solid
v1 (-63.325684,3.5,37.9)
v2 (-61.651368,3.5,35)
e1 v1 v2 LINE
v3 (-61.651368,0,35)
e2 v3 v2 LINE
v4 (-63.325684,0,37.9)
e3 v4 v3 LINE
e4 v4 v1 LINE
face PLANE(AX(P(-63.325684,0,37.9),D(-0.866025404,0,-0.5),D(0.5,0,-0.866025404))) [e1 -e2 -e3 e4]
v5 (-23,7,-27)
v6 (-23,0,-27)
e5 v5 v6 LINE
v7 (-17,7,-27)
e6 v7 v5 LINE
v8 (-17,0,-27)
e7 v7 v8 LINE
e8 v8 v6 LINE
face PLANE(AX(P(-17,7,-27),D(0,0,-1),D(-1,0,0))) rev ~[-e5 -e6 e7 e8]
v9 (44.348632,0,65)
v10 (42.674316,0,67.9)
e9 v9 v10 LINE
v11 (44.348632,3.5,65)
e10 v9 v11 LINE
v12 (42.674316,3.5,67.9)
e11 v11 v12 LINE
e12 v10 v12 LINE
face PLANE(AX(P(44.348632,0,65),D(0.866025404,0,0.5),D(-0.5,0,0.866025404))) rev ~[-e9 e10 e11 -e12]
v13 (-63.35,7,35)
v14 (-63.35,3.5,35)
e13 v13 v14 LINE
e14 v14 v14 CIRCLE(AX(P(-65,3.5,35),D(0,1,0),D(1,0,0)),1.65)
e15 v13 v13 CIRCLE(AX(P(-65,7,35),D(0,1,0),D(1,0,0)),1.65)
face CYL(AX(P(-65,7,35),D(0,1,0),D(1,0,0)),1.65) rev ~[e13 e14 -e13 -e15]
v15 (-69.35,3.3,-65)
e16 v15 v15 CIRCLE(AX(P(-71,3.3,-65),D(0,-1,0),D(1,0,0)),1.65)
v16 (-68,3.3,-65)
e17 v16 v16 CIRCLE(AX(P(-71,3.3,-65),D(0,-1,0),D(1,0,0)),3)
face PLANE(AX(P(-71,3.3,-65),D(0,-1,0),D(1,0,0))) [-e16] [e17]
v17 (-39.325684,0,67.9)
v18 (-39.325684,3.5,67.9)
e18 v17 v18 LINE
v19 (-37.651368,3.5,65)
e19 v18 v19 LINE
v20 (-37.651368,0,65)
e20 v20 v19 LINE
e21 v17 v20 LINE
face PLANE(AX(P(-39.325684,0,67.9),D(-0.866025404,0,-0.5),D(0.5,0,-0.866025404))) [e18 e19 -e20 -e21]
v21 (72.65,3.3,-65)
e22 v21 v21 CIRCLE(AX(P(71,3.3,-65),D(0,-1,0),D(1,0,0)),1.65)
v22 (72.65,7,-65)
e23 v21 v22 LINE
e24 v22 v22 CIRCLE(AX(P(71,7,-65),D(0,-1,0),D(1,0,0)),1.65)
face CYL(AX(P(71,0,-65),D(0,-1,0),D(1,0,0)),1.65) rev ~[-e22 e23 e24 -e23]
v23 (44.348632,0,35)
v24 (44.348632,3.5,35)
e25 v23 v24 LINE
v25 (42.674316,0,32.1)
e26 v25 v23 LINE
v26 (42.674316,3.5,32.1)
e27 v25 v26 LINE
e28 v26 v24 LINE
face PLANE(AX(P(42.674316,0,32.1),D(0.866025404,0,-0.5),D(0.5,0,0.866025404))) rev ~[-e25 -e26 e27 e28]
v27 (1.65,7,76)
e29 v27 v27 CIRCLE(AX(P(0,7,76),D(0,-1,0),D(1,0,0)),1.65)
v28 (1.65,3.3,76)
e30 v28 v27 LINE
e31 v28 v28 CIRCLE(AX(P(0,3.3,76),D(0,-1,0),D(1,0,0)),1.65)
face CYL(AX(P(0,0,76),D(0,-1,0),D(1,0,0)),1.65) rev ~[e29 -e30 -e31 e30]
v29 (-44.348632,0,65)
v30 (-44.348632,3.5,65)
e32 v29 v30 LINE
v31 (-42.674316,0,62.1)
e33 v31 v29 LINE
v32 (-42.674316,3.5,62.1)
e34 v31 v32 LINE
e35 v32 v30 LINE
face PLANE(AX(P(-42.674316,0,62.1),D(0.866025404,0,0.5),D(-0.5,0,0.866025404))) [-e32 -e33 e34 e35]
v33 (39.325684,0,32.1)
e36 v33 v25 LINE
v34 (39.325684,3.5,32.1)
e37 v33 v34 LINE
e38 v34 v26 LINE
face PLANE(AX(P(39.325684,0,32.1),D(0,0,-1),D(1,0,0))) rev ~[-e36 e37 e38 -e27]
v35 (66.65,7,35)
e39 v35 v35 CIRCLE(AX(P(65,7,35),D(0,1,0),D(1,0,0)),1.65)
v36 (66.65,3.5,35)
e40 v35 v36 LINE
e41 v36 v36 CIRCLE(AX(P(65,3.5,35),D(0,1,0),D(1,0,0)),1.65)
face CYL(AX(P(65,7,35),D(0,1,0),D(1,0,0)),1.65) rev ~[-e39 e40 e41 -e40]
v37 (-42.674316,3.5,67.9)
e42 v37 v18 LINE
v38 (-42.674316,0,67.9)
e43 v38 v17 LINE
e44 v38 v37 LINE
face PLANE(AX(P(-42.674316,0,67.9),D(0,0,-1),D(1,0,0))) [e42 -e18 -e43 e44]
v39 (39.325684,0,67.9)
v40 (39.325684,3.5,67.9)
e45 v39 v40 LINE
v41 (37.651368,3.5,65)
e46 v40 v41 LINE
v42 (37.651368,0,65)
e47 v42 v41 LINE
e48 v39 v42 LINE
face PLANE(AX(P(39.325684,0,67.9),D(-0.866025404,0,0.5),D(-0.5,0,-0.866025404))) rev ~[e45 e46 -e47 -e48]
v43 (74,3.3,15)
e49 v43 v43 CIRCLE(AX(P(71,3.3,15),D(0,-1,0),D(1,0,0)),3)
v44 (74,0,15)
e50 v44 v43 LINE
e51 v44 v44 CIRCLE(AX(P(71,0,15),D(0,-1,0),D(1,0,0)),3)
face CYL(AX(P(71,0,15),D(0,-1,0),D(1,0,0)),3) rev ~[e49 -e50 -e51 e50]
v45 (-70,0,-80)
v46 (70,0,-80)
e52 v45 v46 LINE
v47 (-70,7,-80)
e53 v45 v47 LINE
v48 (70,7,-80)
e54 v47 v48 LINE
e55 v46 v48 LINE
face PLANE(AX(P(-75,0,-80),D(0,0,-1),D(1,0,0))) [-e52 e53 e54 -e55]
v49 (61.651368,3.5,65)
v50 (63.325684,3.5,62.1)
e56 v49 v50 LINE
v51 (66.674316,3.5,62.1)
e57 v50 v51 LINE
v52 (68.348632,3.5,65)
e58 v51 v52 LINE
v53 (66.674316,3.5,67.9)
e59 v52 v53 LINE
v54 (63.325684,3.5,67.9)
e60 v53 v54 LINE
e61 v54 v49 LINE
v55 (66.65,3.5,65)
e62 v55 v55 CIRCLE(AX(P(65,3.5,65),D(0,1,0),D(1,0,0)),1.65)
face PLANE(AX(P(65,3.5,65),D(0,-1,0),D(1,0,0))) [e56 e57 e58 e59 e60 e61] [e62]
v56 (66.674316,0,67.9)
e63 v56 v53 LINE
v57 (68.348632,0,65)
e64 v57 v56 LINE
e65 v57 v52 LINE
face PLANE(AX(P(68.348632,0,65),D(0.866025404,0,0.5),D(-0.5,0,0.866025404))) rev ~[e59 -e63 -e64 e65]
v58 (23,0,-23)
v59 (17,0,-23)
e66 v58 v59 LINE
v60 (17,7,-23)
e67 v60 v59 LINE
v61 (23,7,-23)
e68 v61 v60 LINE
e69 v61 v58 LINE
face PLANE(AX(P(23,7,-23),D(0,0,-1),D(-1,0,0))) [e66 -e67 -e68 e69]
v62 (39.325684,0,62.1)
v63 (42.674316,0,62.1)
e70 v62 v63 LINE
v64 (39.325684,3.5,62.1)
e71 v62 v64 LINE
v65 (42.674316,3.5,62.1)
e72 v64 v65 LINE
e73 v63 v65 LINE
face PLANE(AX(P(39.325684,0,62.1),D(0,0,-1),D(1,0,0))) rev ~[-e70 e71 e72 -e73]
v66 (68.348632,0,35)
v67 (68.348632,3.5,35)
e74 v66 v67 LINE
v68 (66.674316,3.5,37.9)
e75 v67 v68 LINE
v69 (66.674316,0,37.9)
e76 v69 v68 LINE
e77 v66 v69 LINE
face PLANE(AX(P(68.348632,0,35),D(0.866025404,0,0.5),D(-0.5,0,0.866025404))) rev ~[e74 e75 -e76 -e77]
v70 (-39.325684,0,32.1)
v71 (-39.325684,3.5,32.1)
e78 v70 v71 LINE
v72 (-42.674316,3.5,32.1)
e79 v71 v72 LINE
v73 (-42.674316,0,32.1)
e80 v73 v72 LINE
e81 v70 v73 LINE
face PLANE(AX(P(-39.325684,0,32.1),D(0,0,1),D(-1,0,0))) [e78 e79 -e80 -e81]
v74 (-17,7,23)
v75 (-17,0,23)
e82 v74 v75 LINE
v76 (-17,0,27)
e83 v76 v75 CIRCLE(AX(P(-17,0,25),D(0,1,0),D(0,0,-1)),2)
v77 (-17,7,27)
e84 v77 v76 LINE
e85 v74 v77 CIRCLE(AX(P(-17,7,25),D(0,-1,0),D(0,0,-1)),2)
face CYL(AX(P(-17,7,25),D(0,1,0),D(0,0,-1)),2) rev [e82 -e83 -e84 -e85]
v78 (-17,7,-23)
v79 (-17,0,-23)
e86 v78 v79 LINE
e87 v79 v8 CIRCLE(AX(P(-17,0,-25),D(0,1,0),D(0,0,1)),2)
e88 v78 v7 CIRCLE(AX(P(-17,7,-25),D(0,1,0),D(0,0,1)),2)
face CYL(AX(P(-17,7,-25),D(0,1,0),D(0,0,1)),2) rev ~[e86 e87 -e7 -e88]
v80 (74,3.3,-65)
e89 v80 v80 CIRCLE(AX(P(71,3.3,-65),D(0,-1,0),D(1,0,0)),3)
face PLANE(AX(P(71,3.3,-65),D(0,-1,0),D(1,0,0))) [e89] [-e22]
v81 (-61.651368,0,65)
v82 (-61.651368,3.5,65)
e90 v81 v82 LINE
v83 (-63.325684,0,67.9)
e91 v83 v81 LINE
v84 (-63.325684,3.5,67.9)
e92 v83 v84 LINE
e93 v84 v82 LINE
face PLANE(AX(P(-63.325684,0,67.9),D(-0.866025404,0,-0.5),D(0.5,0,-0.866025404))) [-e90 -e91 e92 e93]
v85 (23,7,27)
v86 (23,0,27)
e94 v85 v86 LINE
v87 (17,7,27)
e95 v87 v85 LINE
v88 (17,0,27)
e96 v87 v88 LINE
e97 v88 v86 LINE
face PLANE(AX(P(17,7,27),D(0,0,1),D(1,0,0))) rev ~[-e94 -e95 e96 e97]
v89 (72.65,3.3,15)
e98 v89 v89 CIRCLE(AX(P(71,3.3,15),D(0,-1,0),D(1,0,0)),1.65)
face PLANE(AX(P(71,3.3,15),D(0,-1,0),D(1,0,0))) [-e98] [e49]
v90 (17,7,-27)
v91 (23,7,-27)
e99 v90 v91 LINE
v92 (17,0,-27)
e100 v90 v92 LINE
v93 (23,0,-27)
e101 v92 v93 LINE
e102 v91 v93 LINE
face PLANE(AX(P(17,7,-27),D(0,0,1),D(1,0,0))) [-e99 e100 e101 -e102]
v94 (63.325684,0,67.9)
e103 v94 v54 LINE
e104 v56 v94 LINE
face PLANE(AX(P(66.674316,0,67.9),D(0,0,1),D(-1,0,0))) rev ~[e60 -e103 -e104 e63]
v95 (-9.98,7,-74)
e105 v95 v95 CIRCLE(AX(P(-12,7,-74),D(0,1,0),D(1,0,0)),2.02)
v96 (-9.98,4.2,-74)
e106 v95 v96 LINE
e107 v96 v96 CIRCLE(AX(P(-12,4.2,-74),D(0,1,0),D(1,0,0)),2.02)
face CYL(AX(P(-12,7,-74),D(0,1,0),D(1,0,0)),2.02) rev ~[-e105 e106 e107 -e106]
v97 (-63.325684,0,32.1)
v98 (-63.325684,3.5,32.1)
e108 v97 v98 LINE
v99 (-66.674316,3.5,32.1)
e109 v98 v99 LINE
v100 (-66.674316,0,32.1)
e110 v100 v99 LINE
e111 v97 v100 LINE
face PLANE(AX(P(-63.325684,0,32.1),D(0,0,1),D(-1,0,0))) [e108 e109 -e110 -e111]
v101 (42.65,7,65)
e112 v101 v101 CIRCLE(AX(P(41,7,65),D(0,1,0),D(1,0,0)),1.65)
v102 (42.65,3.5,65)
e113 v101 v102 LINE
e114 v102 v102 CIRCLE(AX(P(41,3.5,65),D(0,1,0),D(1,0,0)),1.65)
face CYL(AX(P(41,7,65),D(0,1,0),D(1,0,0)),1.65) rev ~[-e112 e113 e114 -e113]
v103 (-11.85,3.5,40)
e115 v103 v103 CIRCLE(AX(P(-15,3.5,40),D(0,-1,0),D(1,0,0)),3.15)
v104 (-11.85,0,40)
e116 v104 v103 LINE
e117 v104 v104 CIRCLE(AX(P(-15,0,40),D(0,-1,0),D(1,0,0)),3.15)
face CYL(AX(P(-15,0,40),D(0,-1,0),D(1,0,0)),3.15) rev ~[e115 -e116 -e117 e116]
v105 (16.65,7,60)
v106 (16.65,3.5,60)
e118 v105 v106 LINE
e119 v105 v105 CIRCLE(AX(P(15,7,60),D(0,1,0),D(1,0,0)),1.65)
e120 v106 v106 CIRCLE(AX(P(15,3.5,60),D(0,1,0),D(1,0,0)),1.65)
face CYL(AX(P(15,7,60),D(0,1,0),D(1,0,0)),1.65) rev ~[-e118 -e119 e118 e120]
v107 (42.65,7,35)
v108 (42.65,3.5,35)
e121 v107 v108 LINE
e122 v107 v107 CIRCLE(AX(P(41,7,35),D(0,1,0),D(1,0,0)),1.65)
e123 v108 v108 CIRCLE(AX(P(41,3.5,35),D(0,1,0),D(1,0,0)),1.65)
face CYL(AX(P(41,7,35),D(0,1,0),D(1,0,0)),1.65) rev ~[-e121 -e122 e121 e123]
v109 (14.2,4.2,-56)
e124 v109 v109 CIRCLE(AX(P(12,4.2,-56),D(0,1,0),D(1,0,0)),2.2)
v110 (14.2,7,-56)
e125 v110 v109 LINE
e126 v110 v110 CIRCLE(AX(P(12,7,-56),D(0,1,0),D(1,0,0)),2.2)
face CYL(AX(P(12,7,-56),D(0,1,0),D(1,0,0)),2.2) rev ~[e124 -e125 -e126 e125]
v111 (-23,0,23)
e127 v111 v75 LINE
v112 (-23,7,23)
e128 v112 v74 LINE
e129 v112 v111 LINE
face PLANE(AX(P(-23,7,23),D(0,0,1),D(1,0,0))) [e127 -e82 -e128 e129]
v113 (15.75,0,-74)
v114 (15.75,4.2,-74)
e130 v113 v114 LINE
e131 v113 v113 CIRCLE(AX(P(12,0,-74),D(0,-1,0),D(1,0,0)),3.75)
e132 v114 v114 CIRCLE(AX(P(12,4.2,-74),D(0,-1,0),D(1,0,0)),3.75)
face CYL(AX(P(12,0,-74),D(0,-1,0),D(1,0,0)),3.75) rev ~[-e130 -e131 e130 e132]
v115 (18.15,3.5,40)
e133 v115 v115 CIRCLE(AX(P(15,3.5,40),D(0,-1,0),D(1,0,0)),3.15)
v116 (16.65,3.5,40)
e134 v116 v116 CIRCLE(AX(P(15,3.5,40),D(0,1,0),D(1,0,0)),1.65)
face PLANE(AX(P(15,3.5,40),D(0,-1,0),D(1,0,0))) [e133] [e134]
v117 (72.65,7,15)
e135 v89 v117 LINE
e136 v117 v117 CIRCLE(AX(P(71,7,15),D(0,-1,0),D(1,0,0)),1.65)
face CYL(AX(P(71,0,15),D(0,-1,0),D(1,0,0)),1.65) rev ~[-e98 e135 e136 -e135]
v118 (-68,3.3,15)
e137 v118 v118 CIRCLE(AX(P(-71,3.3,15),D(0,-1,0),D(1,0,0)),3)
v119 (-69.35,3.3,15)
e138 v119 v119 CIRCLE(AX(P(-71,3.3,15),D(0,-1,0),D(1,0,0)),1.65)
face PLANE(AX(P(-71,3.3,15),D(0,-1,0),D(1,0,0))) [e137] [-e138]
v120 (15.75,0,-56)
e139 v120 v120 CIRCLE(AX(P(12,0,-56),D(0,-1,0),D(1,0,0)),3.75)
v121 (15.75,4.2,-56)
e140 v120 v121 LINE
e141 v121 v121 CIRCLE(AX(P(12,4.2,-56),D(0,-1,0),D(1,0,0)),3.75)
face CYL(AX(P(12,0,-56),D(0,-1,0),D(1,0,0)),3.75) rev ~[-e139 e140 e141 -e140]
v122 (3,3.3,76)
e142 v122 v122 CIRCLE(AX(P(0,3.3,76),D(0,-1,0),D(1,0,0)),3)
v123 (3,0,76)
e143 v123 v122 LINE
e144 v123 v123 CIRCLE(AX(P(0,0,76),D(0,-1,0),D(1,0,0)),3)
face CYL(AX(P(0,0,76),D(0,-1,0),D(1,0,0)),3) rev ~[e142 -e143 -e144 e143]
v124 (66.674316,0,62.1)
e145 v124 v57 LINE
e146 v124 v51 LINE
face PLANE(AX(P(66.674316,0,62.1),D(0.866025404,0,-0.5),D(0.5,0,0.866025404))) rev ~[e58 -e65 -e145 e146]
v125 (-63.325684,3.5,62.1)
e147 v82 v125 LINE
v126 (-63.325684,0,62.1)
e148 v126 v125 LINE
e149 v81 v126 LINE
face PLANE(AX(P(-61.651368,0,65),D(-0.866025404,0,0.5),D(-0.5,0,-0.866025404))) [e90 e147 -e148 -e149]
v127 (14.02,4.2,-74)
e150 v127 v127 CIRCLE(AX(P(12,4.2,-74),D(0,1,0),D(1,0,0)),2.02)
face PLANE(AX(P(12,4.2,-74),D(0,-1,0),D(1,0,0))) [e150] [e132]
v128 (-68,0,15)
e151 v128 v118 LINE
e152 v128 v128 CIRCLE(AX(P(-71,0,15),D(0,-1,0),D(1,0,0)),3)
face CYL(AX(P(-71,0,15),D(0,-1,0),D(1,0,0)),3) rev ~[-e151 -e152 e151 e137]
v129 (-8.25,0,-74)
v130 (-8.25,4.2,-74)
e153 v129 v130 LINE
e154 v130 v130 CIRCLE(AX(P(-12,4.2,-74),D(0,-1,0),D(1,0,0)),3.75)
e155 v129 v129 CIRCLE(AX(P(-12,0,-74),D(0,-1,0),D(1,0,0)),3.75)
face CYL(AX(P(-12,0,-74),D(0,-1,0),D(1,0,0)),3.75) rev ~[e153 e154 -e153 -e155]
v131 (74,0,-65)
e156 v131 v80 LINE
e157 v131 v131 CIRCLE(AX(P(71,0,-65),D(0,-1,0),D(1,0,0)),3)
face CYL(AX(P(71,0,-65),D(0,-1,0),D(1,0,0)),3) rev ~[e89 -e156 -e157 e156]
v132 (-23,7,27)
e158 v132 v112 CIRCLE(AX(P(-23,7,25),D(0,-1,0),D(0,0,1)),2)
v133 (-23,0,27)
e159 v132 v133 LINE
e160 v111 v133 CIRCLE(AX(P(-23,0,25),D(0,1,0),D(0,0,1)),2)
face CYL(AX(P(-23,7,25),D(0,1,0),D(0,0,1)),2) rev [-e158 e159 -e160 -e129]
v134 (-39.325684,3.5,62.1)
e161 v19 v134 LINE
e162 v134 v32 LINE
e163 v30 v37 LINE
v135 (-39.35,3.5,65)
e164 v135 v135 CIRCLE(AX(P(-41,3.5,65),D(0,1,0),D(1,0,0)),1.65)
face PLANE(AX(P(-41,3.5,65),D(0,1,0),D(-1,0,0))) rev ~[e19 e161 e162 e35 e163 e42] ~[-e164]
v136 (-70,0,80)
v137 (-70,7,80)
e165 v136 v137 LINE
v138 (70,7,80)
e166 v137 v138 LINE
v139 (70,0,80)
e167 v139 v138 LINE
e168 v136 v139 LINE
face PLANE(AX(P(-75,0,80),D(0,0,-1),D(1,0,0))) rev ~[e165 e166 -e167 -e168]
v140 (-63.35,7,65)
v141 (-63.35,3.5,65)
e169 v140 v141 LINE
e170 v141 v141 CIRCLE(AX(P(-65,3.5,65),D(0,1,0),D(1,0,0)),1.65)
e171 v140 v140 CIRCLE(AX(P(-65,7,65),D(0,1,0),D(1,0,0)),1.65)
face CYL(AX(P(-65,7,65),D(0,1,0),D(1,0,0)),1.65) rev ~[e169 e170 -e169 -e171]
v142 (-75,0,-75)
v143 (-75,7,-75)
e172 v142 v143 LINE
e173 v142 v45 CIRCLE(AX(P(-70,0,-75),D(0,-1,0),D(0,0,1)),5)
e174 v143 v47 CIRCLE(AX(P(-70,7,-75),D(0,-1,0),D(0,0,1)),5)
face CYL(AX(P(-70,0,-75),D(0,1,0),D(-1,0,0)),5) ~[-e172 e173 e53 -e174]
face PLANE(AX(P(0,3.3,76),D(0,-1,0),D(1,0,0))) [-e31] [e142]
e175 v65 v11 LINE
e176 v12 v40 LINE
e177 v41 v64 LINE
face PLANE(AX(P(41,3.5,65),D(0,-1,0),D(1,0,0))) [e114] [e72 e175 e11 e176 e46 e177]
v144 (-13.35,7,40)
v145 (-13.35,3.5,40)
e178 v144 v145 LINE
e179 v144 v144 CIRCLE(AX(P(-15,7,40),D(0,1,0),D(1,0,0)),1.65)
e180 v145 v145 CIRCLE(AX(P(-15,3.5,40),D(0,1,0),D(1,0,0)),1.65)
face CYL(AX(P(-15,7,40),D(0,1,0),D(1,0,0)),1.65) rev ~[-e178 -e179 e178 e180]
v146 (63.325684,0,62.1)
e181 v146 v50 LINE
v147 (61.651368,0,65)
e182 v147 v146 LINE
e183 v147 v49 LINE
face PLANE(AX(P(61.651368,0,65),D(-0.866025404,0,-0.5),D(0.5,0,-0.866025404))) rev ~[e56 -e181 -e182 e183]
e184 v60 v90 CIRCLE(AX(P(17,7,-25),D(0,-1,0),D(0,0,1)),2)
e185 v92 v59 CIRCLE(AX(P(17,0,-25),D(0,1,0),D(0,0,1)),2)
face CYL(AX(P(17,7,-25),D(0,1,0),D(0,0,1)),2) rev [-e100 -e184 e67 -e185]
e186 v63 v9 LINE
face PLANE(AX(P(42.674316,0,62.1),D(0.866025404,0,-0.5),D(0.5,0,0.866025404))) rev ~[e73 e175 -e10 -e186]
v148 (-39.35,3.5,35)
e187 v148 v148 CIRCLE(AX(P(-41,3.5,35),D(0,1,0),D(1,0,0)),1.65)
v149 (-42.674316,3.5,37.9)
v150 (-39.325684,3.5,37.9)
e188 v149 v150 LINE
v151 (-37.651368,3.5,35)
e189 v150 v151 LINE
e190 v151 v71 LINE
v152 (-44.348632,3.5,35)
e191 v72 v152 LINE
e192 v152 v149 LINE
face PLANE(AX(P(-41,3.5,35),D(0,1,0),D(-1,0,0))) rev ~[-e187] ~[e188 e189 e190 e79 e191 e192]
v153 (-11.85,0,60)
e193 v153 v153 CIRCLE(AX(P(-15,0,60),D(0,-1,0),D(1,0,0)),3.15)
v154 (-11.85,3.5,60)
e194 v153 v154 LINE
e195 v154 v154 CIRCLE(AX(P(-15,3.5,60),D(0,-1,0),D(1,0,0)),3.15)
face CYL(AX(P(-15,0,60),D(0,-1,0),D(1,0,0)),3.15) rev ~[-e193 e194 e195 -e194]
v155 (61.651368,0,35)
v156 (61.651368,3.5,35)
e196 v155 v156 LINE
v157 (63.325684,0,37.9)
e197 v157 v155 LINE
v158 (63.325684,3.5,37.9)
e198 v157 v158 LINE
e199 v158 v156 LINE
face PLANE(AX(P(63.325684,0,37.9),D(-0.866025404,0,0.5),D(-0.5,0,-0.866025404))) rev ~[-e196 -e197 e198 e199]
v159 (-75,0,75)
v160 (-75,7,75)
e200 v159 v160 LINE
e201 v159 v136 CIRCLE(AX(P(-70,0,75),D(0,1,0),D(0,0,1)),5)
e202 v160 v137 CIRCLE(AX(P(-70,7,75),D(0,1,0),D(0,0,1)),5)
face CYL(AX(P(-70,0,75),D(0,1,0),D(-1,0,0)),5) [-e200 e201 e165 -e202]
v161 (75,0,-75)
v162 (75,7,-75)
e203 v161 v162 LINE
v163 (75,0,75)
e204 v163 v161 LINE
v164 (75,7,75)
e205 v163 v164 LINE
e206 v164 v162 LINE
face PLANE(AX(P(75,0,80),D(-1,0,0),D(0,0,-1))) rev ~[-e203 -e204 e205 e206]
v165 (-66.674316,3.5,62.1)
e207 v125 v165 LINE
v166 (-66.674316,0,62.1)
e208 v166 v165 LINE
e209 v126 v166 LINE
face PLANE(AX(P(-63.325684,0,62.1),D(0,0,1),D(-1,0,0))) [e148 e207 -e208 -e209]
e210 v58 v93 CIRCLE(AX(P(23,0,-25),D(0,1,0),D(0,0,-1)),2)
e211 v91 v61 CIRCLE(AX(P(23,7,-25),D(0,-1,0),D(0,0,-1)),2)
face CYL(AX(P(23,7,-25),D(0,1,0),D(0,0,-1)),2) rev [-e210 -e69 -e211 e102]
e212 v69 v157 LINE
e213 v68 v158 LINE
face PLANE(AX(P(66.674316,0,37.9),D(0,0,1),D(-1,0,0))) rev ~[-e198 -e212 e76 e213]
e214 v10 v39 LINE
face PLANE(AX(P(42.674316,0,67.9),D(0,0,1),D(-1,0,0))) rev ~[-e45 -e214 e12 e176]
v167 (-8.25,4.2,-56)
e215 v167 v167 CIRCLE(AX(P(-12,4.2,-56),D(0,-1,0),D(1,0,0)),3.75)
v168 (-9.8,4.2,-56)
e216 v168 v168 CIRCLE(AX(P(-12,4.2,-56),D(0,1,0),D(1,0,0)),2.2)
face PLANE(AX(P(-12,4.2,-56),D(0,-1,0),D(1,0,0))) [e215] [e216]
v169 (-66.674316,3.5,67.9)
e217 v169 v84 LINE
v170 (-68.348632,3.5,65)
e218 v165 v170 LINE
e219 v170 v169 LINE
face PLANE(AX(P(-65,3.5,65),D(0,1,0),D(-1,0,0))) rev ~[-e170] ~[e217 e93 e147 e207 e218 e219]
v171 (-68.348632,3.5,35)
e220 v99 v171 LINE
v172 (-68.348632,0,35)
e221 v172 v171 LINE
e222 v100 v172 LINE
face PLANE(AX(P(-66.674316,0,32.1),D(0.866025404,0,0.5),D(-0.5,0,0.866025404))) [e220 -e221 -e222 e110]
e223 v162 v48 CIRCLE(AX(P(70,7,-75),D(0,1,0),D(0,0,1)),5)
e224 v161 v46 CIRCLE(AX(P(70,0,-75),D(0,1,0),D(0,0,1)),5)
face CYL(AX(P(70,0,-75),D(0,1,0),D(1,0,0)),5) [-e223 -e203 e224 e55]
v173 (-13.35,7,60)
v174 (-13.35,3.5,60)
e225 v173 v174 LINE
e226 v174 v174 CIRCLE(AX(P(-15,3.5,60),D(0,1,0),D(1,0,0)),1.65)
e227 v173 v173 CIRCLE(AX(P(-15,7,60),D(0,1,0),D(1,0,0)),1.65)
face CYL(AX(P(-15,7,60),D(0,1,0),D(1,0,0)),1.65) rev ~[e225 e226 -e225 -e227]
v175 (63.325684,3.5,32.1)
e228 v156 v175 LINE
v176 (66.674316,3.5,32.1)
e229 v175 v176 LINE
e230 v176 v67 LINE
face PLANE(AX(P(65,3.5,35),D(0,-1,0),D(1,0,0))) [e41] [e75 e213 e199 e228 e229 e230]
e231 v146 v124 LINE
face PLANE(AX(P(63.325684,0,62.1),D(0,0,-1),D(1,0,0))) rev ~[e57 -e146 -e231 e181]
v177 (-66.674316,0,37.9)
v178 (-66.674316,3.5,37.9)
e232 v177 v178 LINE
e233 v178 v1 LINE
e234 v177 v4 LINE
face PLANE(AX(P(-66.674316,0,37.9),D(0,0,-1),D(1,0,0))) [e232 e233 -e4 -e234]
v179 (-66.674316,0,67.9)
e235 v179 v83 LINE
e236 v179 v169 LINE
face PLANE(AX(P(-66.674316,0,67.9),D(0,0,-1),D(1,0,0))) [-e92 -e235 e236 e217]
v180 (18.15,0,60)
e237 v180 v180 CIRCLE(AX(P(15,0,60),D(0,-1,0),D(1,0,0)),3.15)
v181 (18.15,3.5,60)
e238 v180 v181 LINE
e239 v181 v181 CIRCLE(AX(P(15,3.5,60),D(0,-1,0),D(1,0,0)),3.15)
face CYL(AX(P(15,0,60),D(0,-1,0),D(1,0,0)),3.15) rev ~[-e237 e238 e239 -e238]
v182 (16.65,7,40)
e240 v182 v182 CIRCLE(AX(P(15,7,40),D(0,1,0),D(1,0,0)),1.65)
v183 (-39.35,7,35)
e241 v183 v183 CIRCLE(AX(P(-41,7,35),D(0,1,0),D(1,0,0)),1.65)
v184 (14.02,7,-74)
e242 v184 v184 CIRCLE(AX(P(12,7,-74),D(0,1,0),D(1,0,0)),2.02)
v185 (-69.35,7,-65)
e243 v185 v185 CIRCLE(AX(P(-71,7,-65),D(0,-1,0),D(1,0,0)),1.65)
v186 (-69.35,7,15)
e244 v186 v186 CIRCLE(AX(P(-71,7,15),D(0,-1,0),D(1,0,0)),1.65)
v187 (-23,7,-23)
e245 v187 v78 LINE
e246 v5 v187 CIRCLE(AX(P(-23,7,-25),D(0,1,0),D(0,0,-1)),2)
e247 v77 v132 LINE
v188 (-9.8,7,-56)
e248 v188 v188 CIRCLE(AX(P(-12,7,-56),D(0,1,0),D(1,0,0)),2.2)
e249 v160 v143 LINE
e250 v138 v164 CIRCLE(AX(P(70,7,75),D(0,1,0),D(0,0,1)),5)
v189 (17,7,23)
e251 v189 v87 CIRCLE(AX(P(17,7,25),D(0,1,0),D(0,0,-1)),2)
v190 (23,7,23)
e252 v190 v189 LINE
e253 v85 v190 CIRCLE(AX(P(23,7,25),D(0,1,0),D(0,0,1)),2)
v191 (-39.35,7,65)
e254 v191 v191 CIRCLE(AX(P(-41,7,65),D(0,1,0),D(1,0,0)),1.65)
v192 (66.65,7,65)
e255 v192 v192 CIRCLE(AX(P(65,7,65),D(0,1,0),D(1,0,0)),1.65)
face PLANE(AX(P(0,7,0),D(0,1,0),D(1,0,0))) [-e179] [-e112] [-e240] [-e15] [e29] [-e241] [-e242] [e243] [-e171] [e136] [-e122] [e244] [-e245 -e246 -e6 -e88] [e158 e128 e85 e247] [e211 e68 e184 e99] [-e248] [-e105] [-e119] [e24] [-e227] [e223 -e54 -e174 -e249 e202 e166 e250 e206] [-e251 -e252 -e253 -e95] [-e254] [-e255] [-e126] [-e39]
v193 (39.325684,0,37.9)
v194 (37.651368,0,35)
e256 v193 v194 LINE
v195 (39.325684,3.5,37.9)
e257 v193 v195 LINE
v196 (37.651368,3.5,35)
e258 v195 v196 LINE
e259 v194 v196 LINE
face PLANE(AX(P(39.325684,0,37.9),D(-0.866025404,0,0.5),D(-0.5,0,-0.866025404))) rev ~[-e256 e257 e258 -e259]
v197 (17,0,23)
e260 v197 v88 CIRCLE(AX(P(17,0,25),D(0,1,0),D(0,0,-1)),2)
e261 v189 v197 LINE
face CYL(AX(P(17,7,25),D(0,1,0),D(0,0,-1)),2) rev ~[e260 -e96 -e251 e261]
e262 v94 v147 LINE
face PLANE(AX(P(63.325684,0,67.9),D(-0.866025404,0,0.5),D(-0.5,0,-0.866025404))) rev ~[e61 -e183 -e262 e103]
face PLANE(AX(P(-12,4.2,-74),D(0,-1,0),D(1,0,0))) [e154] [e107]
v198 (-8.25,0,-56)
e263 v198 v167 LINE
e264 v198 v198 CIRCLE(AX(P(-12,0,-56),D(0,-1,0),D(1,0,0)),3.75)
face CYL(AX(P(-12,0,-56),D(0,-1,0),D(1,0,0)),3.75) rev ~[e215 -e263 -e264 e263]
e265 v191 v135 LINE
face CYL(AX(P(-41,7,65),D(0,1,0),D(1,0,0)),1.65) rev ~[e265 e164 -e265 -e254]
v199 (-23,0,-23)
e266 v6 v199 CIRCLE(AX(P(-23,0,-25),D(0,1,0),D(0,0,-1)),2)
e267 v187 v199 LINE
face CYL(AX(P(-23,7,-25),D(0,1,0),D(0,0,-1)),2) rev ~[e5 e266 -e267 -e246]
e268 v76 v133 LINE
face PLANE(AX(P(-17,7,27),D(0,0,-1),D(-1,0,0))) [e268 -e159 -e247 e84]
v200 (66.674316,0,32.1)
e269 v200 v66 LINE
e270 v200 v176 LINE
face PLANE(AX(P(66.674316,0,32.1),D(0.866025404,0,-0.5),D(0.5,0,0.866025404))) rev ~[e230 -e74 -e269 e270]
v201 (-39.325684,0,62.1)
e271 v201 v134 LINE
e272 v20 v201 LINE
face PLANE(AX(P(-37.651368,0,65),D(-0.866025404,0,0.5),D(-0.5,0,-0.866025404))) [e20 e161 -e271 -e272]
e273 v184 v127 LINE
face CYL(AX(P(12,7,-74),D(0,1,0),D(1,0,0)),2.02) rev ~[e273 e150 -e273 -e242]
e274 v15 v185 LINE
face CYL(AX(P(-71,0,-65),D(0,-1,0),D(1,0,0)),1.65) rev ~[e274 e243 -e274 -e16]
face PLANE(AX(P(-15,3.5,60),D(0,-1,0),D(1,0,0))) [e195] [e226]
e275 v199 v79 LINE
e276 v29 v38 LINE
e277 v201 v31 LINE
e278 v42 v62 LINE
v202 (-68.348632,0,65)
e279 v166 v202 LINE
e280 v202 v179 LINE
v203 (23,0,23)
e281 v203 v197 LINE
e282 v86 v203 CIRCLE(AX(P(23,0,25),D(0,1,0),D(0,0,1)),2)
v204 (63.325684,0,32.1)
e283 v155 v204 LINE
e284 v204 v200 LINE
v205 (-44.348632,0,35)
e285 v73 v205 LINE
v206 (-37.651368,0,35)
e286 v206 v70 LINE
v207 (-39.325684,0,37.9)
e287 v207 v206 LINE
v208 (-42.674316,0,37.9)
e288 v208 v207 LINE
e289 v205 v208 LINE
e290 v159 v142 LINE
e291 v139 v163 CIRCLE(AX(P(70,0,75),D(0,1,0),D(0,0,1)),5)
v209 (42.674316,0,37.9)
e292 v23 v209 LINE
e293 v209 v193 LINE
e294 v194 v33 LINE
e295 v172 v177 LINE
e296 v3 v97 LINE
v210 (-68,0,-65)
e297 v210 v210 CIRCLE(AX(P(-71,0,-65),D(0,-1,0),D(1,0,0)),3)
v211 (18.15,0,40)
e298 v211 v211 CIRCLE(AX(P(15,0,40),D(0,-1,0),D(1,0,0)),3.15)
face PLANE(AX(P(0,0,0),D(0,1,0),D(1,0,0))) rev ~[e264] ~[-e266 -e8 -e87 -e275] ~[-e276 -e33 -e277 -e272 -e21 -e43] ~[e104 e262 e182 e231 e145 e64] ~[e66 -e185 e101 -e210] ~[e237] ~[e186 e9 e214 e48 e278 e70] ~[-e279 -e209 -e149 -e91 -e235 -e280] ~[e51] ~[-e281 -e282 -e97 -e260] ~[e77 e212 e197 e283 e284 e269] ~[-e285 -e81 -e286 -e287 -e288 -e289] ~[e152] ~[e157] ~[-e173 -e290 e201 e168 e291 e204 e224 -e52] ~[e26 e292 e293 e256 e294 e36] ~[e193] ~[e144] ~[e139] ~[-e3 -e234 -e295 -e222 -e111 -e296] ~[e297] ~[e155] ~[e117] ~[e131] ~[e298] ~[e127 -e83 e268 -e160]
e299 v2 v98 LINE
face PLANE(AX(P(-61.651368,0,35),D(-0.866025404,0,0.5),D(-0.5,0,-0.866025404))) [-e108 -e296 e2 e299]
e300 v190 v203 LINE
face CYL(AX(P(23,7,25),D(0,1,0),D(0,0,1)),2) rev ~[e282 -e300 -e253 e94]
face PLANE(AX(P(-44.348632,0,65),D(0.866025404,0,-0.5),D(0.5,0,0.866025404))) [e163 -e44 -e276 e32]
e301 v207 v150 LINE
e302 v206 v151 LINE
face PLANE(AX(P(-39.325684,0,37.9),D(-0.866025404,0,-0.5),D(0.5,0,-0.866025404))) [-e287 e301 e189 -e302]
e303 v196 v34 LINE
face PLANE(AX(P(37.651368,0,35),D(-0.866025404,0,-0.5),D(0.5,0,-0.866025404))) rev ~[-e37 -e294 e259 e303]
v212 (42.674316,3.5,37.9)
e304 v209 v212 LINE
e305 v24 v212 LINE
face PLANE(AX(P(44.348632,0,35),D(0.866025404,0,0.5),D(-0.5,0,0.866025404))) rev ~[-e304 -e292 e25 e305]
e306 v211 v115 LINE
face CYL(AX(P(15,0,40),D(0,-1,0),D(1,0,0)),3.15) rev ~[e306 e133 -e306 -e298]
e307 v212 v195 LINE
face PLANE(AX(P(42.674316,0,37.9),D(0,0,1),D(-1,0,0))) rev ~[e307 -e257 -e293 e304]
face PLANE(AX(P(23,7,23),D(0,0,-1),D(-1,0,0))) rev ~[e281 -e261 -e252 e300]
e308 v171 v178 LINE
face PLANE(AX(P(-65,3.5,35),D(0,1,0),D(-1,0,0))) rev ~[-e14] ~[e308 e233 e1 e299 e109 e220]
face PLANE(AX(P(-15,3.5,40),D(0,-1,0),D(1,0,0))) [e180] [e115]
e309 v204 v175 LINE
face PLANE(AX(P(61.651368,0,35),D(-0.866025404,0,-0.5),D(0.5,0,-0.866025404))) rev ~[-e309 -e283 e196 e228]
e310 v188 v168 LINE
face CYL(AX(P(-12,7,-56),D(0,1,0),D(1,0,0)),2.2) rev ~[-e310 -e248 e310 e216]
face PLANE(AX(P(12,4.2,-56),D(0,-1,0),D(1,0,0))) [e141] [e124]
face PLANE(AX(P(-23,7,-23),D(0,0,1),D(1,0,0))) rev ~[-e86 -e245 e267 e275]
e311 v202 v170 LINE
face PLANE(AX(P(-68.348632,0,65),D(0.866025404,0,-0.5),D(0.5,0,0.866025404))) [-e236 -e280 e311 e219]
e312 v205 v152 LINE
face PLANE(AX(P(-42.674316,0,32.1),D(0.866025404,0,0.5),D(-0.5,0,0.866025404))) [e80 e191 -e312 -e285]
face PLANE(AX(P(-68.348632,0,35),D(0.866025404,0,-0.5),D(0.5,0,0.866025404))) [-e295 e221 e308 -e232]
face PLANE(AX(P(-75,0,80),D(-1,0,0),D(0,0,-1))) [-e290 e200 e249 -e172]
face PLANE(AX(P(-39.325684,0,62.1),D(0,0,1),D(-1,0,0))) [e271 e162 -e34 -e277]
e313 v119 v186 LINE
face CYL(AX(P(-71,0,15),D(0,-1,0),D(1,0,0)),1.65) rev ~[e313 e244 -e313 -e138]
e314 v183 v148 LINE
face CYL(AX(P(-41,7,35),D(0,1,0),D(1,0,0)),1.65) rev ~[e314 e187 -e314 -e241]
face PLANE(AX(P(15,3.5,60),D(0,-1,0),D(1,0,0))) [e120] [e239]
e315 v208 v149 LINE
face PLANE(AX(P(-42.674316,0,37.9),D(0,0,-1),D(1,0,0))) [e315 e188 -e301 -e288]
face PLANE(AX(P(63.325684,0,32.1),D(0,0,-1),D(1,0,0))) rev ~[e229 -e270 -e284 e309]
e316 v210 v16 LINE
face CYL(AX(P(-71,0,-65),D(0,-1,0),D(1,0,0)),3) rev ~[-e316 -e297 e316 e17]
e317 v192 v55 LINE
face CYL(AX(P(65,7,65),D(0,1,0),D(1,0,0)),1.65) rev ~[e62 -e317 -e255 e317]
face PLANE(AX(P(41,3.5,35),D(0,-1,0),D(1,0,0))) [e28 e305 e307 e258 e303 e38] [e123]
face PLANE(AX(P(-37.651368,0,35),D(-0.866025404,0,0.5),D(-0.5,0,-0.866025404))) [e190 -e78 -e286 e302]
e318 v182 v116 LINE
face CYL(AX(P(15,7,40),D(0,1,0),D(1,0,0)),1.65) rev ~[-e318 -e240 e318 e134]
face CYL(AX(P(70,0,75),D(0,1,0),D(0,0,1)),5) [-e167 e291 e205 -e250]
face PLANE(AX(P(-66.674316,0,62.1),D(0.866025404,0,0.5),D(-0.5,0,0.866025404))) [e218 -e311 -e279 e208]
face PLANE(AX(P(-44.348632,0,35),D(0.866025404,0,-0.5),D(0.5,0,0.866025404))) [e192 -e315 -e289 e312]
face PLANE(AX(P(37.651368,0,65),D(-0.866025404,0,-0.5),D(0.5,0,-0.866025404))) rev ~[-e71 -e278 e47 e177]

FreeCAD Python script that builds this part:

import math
import FreeCAD as App
import Part
import Sketcher
Q = App.Units.Quantity


def edges_at(feature, points):
    """Names of the edges that pass closest to the given points."""
    edges = feature.Shape.Edges
    near = lambda p: min(range(len(edges)), key=lambda i: edges[i].distToShape(Part.Vertex(*p))[0])
    return sorted({f"Edge{near(p) + 1}" for p in points})


def add_polygon(sketch, points):
    """Adds a closed chain of lines whose ends are joined by coincident constraints."""
    first, n = sketch.GeometryCount, len(points)
    for a, b in zip(points, points[1:] + points[:1]):
        sketch.addGeometry(Part.LineSegment(App.Vector(*a, 0), App.Vector(*b, 0)), False)
    for i in range(n):
        sketch.addConstraint(Sketcher.Constraint("Coincident", first + i, 2, first + (i + 1) % n, 1))

doc = App.newDocument("Part")
body = doc.addObject("PartDesign::Body", "Body")

# Sketch on XZ plane
sketch1 = body.newObject("Sketcher::SketchObject", "Sketch")
sketch1.AttachmentSupport = (doc.getObject("XZ_Plane"), [""])
sketch1.MapMode = "FlatFace"
add_polygon(sketch1, [(-75, -80), (-75, 80), (75, 80), (75, -80)])  # lines 0-3
sketch1.addConstraint([
    Sketcher.Constraint("Vertical", 0),
    Sketcher.Constraint("Horizontal", 1),
    Sketcher.Constraint("Vertical", 2),
    Sketcher.Constraint("Horizontal", 3),
    Sketcher.Constraint("Symmetric", 0, 2, 2, 2, -1, 1),
    Sketcher.Constraint("DistanceX", 1, 1, 1, 2, 150.0),
    Sketcher.Constraint("DistanceY", 0, 1, 0, 2, 160.0),
])
pad1 = body.newObject("PartDesign::Pad", "Pad")
pad1.Profile = sketch1
pad1.Length = 7
pad1.Reversed = True
doc.recompute()

fillet = body.newObject("PartDesign::Fillet", "Fillet")
fillet.Base = (pad1, edges_at(pad1, [
    (75, 3.5, 80),
    (-75, 3.5, 80),
    (-75, 3.5, -80),
    (75, 3.5, -80),
]))
fillet.Radius = 5

# Sketch on XZ plane
sketch2 = body.newObject("Sketcher::SketchObject", "Sketch001")
sketch2.AttachmentSupport = (doc.getObject("XZ_Plane"), [""])
sketch2.MapMode = "FlatFace"
sketch2.AttachmentOffset = App.Placement(App.Vector(0, 0, -7), App.Rotation())
sketch2.addGeometry([
    Part.Circle(App.Vector(-65, 35, 0), App.Vector(0, 0, 1), 1.65),  # 0
    Part.Circle(App.Vector(-41, 35, 0), App.Vector(0, 0, 1), 1.65),  # 1
    Part.Circle(App.Vector(-41, 65, 0), App.Vector(0, 0, 1), 1.65),  # 2
    Part.Circle(App.Vector(-65, 65, 0), App.Vector(0, 0, 1), 1.65),  # 3
    Part.Circle(App.Vector(65, 65, 0), App.Vector(0, 0, 1), 1.65),  # 4
    Part.Circle(App.Vector(41, 65, 0), App.Vector(0, 0, 1), 1.65),  # 5
    Part.Circle(App.Vector(41, 35, 0), App.Vector(0, 0, 1), 1.65),  # 6
    Part.Circle(App.Vector(65, 35, 0), App.Vector(0, 0, 1), 1.65),  # 7
    Part.Circle(App.Vector(-15, 40, 0), App.Vector(0, 0, 1), 1.65),  # 8
    Part.Circle(App.Vector(-15, 60, 0), App.Vector(0, 0, 1), 1.65),  # 9
    Part.Circle(App.Vector(15, 60, 0), App.Vector(0, 0, 1), 1.65),  # 10
    Part.Circle(App.Vector(15, 40, 0), App.Vector(0, 0, 1), 1.65),  # 11
], False)
sketch2.addConstraint([
    Sketcher.Constraint("Equal", 0, 1),
    Sketcher.Constraint("Equal", 1, 2),
    Sketcher.Constraint("Equal", 2, 3),
    Sketcher.Constraint("Equal", 3, 4),
    Sketcher.Constraint("Equal", 4, 5),
    Sketcher.Constraint("Equal", 5, 6),
    Sketcher.Constraint("Equal", 6, 7),
    Sketcher.Constraint("Equal", 7, 8),
    Sketcher.Constraint("Equal", 8, 9),
    Sketcher.Constraint("Equal", 9, 10),
    Sketcher.Constraint("Equal", 10, 11),
    Sketcher.Constraint("Symmetric", 3, 3, 4, 3, -2),
    Sketcher.Constraint("Symmetric", 2, 3, 5, 3, -2),
    Sketcher.Constraint("Symmetric", 1, 3, 6, 3, -2),
    Sketcher.Constraint("Symmetric", 0, 3, 7, 3, -2),
    Sketcher.Constraint("Symmetric", 9, 3, 10, 3, -2),
    Sketcher.Constraint("Symmetric", 8, 3, 11, 3, -2),
    Sketcher.Constraint("Horizontal", 0, 3, 1, 3),
    Sketcher.Constraint("Horizontal", 2, 3, 3, 3),
    Sketcher.Constraint("Vertical", 1, 3, 2, 3),
    Sketcher.Constraint("Vertical", 0, 3, 3, 3),
    Sketcher.Constraint("Vertical", 8, 3, 9, 3),
    Sketcher.Constraint("Diameter", 0, 3.3),
    Sketcher.Constraint("DistanceX", 0, 3, -1, 1, 65.0),
    Sketcher.Constraint("DistanceY", -1, 1, 0, 3, 35.0),
    Sketcher.Constraint("DistanceX", 1, 3, -1, 1, 41.0),
    Sketcher.Constraint("DistanceY", -1, 1, 2, 3, 65.0),
    Sketcher.Constraint("DistanceX", 8, 3, -1, 1, 15.0),
    Sketcher.Constraint("DistanceY", -1, 1, 8, 3, 40.0),
    Sketcher.Constraint("DistanceY", -1, 1, 9, 3, 60.0),
])
pocket1 = body.newObject("PartDesign::Pocket", "Pocket")
pocket1.Profile = sketch2
pocket1.Type = "ThroughAll"
pocket1.Reversed = True

# Sketch on XZ plane
sketch3 = body.newObject("Sketcher::SketchObject", "Sketch002")
sketch3.AttachmentSupport = (doc.getObject("XZ_Plane"), [""])
sketch3.MapMode = "FlatFace"
sketch3.AttachmentOffset = App.Placement(App.Vector(0, 0, -7), App.Rotation())
sketch3.addGeometry([
    Part.Circle(App.Vector(12, -74, 0), App.Vector(0, 0, 1), 2.02),
    Part.Circle(App.Vector(12, -56, 0), App.Vector(0, 0, 1), 2.2),
    Part.Circle(App.Vector(-12, -56, 0), App.Vector(0, 0, 1), 2.2),
    Part.Circle(App.Vector(-12, -74, 0), App.Vector(0, 0, 1), 2.02),
], False)
sketch3.addConstraint([
    Sketcher.Constraint("Equal", 1, 2),
    Sketcher.Constraint("Equal", 0, 3),
    Sketcher.Constraint("Symmetric", 1, 3, 2, 3, -2),
    Sketcher.Constraint("Symmetric", 0, 3, 3, 3, -2),
    Sketcher.Constraint("Vertical", 0, 3, 1, 3),
    Sketcher.Constraint("Diameter", 1, 4.4),
    Sketcher.Constraint("Diameter", 0, 4.04),
    Sketcher.Constraint("DistanceX", -1, 1, 0, 3, 12.0),
    Sketcher.Constraint("DistanceY", 0, 3, -1, 1, 74.0),
    Sketcher.Constraint("DistanceY", 1, 3, -1, 1, 56.0),
])
pocket2 = body.newObject("PartDesign::Pocket", "Pocket001")
pocket2.Profile = sketch3
pocket2.Type = "ThroughAll"
pocket2.Reversed = True

# Sketch on XZ plane
sketch4 = body.newObject("Sketcher::SketchObject", "Sketch003")
sketch4.AttachmentSupport = (doc.getObject("XZ_Plane"), [""])
sketch4.MapMode = "FlatFace"
sketch4.addGeometry(Part.Circle(App.Vector(-15, 60, 0), App.Vector(0, 0, 1), 3.15), False)  # 0
sketch4.addGeometry(Part.Circle(App.Vector(-15, 40, 0), App.Vector(0, 0, 1), 3.15), False)  # 1
sketch4.addGeometry(Part.Circle(App.Vector(15, 60, 0), App.Vector(0, 0, 1), 3.15), False)  # 2
sketch4.addGeometry(Part.Circle(App.Vector(15, 40, 0), App.Vector(0, 0, 1), 3.15), False)  # 3
add_polygon(sketch4, [(-37.651368, 65), (-39.325684, 67.9), (-42.674316, 67.9), (-44.348632, 65), (-42.674316, 62.1), (-39.325684, 62.1)])  # lines 4-9
add_polygon(sketch4, [(61.651368, 35), (63.325684, 32.1), (66.674316, 32.1), (68.348632, 35), (66.674316, 37.9), (63.325684, 37.9)])  # lines 10-15
add_polygon(sketch4, [(37.651368, 35), (39.325684, 32.1), (42.674316, 32.1), (44.348632, 35), (42.674316, 37.9), (39.325684, 37.9)])  # lines 16-21
add_polygon(sketch4, [(61.651368, 65), (63.325684, 62.1), (66.674316, 62.1), (68.348632, 65), (66.674316, 67.9), (63.325684, 67.9)])  # lines 22-27
add_polygon(sketch4, [(37.651368, 65), (39.325684, 62.1), (42.674316, 62.1), (44.348632, 65), (42.674316, 67.9), (39.325684, 67.9)])  # lines 28-33
add_polygon(sketch4, [(-61.651368, 65), (-63.325684, 67.9), (-66.674316, 67.9), (-68.348632, 65), (-66.674316, 62.1), (-63.325684, 62.1)])  # lines 34-39
add_polygon(sketch4, [(-37.651368, 35), (-39.325684, 37.9), (-42.674316, 37.9), (-44.348632, 35), (-42.674316, 32.1), (-39.325684, 32.1)])  # lines 40-45
add_polygon(sketch4, [(-61.651368, 35), (-63.325684, 37.9), (-66.674316, 37.9), (-68.348632, 35), (-66.674316, 32.1), (-63.325684, 32.1)])  # lines 46-51
sketch4.addConstraint([
    Sketcher.Constraint("Horizontal", 5),
    Sketcher.Constraint("Horizontal", 8),
    Sketcher.Constraint("Horizontal", 11),
    Sketcher.Constraint("Horizontal", 14),
    Sketcher.Constraint("Horizontal", 17),
    Sketcher.Constraint("Horizontal", 20),
    Sketcher.Constraint("Horizontal", 23),
    Sketcher.Constraint("Horizontal", 26),
    Sketcher.Constraint("Horizontal", 29),
    Sketcher.Constraint("Horizontal", 32),
    Sketcher.Constraint("Horizontal", 35),
    Sketcher.Constraint("Horizontal", 38),
    Sketcher.Constraint("Horizontal", 41),
    Sketcher.Constraint("Horizontal", 44),
    Sketcher.Constraint("Horizontal", 47),
    Sketcher.Constraint("Horizontal", 50),
    Sketcher.Constraint("Equal", 0, 1),
    Sketcher.Constraint("Equal", 1, 2),
    Sketcher.Constraint("Equal", 2, 3),
    Sketcher.Constraint("Symmetric", 0, 3, 2, 3, -2),
    Sketcher.Constraint("Symmetric", 1, 3, 3, 3, -2),
    Sketcher.Constraint("Symmetric", 8, 2, 28, 2, -2),
    Sketcher.Constraint("Symmetric", 6, 2, 30, 2, -2),
    Sketcher.Constraint("Symmetric", 5, 2, 31, 2, -2),
    Sketcher.Constraint("Symmetric", 9, 2, 33, 2, -2),
    Sketcher.Constraint("Symmetric", 26, 2, 34, 2, -2),
    Sketcher.Constraint("Symmetric", 24, 2, 36, 2, -2),
    Sketcher.Constraint("Symmetric", 23, 2, 37, 2, -2),
    Sketcher.Constraint("Symmetric", 27, 2, 39, 2, -2),
    Sketcher.Constraint("Symmetric", 20, 2, 40, 2, -2),
    Sketcher.Constraint("Symmetric", 18, 2, 42, 2, -2),
    Sketcher.Constraint("Symmetric", 17, 2, 43, 2, -2),
    Sketcher.Constraint("Symmetric", 21, 2, 45, 2, -2),
    Sketcher.Constraint("Symmetric", 14, 2, 46, 2, -2),
    Sketcher.Constraint("Symmetric", 12, 2, 48, 2, -2),
    Sketcher.Constraint("Symmetric", 11, 2, 49, 2, -2),
    Sketcher.Constraint("Symmetric", 15, 2, 51, 2, -2),
    Sketcher.Constraint("Parallel", 4, 7),
    Sketcher.Constraint("Parallel", 6, 9),
    Sketcher.Constraint("Parallel", 7, 10),
    Sketcher.Constraint("Parallel", 9, 12),
    Sketcher.Constraint("Parallel", 10, 13),
    Sketcher.Constraint("Parallel", 12, 15),
    Sketcher.Constraint("Parallel", 13, 16),
    Sketcher.Constraint("Parallel", 15, 18),
    Sketcher.Constraint("Parallel", 16, 19),
    Sketcher.Constraint("Parallel", 18, 21),
    Sketcher.Constraint("Parallel", 19, 22),
    Sketcher.Constraint("Parallel", 21, 24),
    Sketcher.Constraint("Parallel", 22, 25),
    Sketcher.Constraint("Parallel", 24, 27),
    Sketcher.Constraint("Parallel", 25, 28),
    Sketcher.Constraint("Parallel", 27, 30),
    Sketcher.Constraint("Parallel", 30, 33),
    Sketcher.Constraint("Parallel", 33, 36),
    Sketcher.Constraint("Parallel", 36, 39),
    Sketcher.Constraint("Parallel", 39, 42),
    Sketcher.Constraint("Parallel", 42, 45),
    Sketcher.Constraint("Parallel", 45, 48),
    Sketcher.Constraint("Parallel", 48, 51),
    Sketcher.Constraint("Horizontal", 6, 2, 9, 2),
    Sketcher.Constraint("Horizontal", 12, 2, 15, 2),
    Sketcher.Constraint("Horizontal", 11, 2, 16, 2),
    Sketcher.Constraint("Horizontal", 15, 2, 18, 2),
    Sketcher.Constraint("Horizontal", 14, 2, 19, 2),
    Sketcher.Constraint("Horizontal", 18, 2, 21, 2),
    Sketcher.Constraint("Horizontal", 8, 2, 22, 2),
    Sketcher.Constraint("Horizontal", 9, 2, 24, 2),
    Sketcher.Constraint("Horizontal", 5, 2, 25, 2),
    Sketcher.Constraint("Horizontal", 24, 2, 27, 2),
    Sketcher.Constraint("Vertical", 0, 3, 1, 3),
    Sketcher.Constraint("Vertical", 5, 2, 7, 2),
    Sketcher.Constraint("Vertical", 11, 2, 13, 2),
    Sketcher.Constraint("Vertical", 14, 2, 22, 2),
    Sketcher.Constraint("Vertical", 13, 2, 23, 2),
    Sketcher.Constraint("Vertical", 12, 2, 24, 2),
    Sketcher.Constraint("Vertical", 20, 2, 28, 2),
    Sketcher.Constraint("Vertical", 19, 2, 29, 2),
    Sketcher.Constraint("Equal", 8, 11),
    Sketcher.Constraint("Diameter", 0, 6.3),
    Sketcher.Constraint("Angle", 4, Q("120 deg")),
    Sketcher.Constraint("DistanceX", 0, 3, -1, 1, 15.0),
    Sketcher.Constraint("DistanceY", -1, 1, 0, 3, 60.0),
    Sketcher.Constraint("DistanceY", -1, 1, 1, 3, 40.0),
    Sketcher.Constraint("DistanceY", -1, 1, 6, 2, 65.0),
    Sketcher.Constraint("DistanceY", -1, 1, 12, 2, 35.0),
    Sketcher.Constraint("DistanceX", 16, 2, 10, 2, 24.0),
    Sketcher.Constraint("DistanceY", -1, 1, 4, 2, 67.9),
    Sketcher.Constraint("DistanceX", 5, 2, 5, 1, 3.348632),
    Sketcher.Constraint("DistanceX", 6, 2, -1, 1, 44.348632),
])
pocket3 = body.newObject("PartDesign::Pocket", "Pocket002")
pocket3.Profile = sketch4
pocket3.Length = 3.5

# Sketch on XZ plane
sketch5 = body.newObject("Sketcher::SketchObject", "Sketch004")
sketch5.AttachmentSupport = (doc.getObject("XZ_Plane"), [""])
sketch5.MapMode = "FlatFace"
sketch5.addGeometry([
    Part.Circle(App.Vector(12, -74, 0), App.Vector(0, 0, 1), 3.75),
    Part.Circle(App.Vector(12, -56, 0), App.Vector(0, 0, 1), 3.75),
    Part.Circle(App.Vector(-12, -56, 0), App.Vector(0, 0, 1), 3.75),
    Part.Circle(App.Vector(-12, -74, 0), App.Vector(0, 0, 1), 3.75),
], False)
sketch5.addConstraint([
    Sketcher.Constraint("Equal", 0, 1),
    Sketcher.Constraint("Equal", 1, 2),
    Sketcher.Constraint("Equal", 2, 3),
    Sketcher.Constraint("Symmetric", 1, 3, 2, 3, -2),
    Sketcher.Constraint("Symmetric", 0, 3, 3, 3, -2),
    Sketcher.Constraint("Vertical", 0, 3, 1, 3),
    Sketcher.Constraint("Diameter", 0, 7.5),
    Sketcher.Constraint("DistanceX", -1, 1, 0, 3, 12.0),
    Sketcher.Constraint("DistanceY", 0, 3, -1, 1, 74.0),
    Sketcher.Constraint("DistanceY", 1, 3, -1, 1, 56.0),
])
pocket4 = body.newObject("PartDesign::Pocket", "Pocket003")
pocket4.Profile = sketch5
pocket4.Length = 4.2

# Sketch on XZ plane
sketch6 = body.newObject("Sketcher::SketchObject", "Sketch005")
sketch6.AttachmentSupport = (doc.getObject("XZ_Plane"), [""])
sketch6.MapMode = "FlatFace"
sketch6.AttachmentOffset = App.Placement(App.Vector(0, 0, -7), App.Rotation())
sketch6.addGeometry([
    Part.LineSegment(App.Vector(23, -27, 0), App.Vector(17, -27, 0)),  # 0
    Part.ArcOfCircle(Part.Circle(App.Vector(17, -25, 0), App.Vector(0, 0, 1), 2), math.radians(90), math.radians(270)),  # 1
    Part.LineSegment(App.Vector(17, -23, 0), App.Vector(23, -23, 0)),  # 2
    Part.ArcOfCircle(Part.Circle(App.Vector(23, -25, 0), App.Vector(0, 0, 1), 2), math.radians(-90), math.radians(90)),  # 3
    Part.LineSegment(App.Vector(-17, -27, 0), App.Vector(-23, -27, 0)),  # 4
    Part.ArcOfCircle(Part.Circle(App.Vector(-23, -25, 0), App.Vector(0, 0, 1), 2), math.radians(90), math.radians(270)),  # 5
    Part.LineSegment(App.Vector(-23, -23, 0), App.Vector(-17, -23, 0)),  # 6
    Part.ArcOfCircle(Part.Circle(App.Vector(-17, -25, 0), App.Vector(0, 0, 1), 2), math.radians(-90), math.radians(90)),  # 7
    Part.LineSegment(App.Vector(17, 27, 0), App.Vector(23, 27, 0)),  # 8
    Part.ArcOfCircle(Part.Circle(App.Vector(23, 25, 0), App.Vector(0, 0, 1), 2), math.radians(-90), math.radians(90)),  # 9
    Part.LineSegment(App.Vector(23, 23, 0), App.Vector(17, 23, 0)),  # 10
    Part.ArcOfCircle(Part.Circle(App.Vector(17, 25, 0), App.Vector(0, 0, 1), 2), math.radians(90), math.radians(270)),  # 11
    Part.LineSegment(App.Vector(-23, 27, 0), App.Vector(-17, 27, 0)),  # 12
    Part.ArcOfCircle(Part.Circle(App.Vector(-17, 25, 0), App.Vector(0, 0, 1), 2), math.radians(-90), math.radians(90)),  # 13
    Part.LineSegment(App.Vector(-17, 23, 0), App.Vector(-23, 23, 0)),  # 14
    Part.ArcOfCircle(Part.Circle(App.Vector(-23, 25, 0), App.Vector(0, 0, 1), 2), math.radians(90), math.radians(270)),  # 15
], False)
sketch6.addConstraint([
    Sketcher.Constraint("Tangent", 0, 2, 1, 2),
    Sketcher.Constraint("Tangent", 1, 1, 2, 1),
    Sketcher.Constraint("Tangent", 2, 2, 3, 2),
    Sketcher.Constraint("Tangent", 3, 1, 0, 1),
    Sketcher.Constraint("Tangent", 4, 2, 5, 2),
    Sketcher.Constraint("Tangent", 5, 1, 6, 1),
    Sketcher.Constraint("Tangent", 6, 2, 7, 2),
    Sketcher.Constraint("Tangent", 7, 1, 4, 1),
    Sketcher.Constraint("Tangent", 8, 2, 9, 2),
    Sketcher.Constraint("Tangent", 9, 1, 10, 1),
    Sketcher.Constraint("Tangent", 10, 2, 11, 2),
    Sketcher.Constraint("Tangent", 11, 1, 8, 1),
    Sketcher.Constraint("Tangent", 12, 2, 13, 2),
    Sketcher.Constraint("Tangent", 13, 1, 14, 1),
    Sketcher.Constraint("Tangent", 14, 2, 15, 2),
    Sketcher.Constraint("Tangent", 15, 1, 12, 1),
    Sketcher.Constraint("Horizontal", 0),
    Sketcher.Constraint("Horizontal", 2),
    Sketcher.Constraint("Horizontal", 4),
    Sketcher.Constraint("Horizontal", 6),
    Sketcher.Constraint("Horizontal", 8),
    Sketcher.Constraint("Horizontal", 10),
    Sketcher.Constraint("Horizontal", 12),
    Sketcher.Constraint("Horizontal", 14),
    Sketcher.Constraint("Equal", 3, 5),
    Sketcher.Constraint("Equal", 7, 9),
    Sketcher.Constraint("Equal", 11, 13),
    Sketcher.Constraint("Symmetric", 5, 3, 9, 3, -1, 1),
    Sketcher.Constraint("Symmetric", 1, 3, 13, 3, -1, 1),
    Sketcher.Constraint("Symmetric", 3, 3, 5, 3, -2),
    Sketcher.Constraint("Vertical", 1, 3, 11, 3),
    Sketcher.Constraint("Vertical", 7, 3, 13, 3),
    Sketcher.Constraint("Vertical", 5, 3, 15, 3),
    Sketcher.Constraint("Radius", 1, 2.0),
    Sketcher.Constraint("DistanceX", 0, 2, 0, 1, 6.0),
    Sketcher.Constraint("DistanceX", -1, 1, 1, 3, 17.0),
    Sketcher.Constraint("DistanceY", 1, 3, -1, 1, 25.0),
])
pocket5 = body.newObject("PartDesign::Pocket", "Pocket004")
pocket5.Profile = sketch6
pocket5.Type = "ThroughAll"
pocket5.Reversed = True

# Sketch on XZ plane
sketch7 = body.newObject("Sketcher::SketchObject", "Sketch006")
sketch7.AttachmentSupport = (doc.getObject("XZ_Plane"), [""])
sketch7.MapMode = "FlatFace"
sketch7.addGeometry([
    Part.Circle(App.Vector(-71, -65, 0), App.Vector(0, 0, 1), 1.65),
    Part.Circle(App.Vector(-71, 15, 0), App.Vector(0, 0, 1), 1.65),
    Part.Circle(App.Vector(71, 15, 0), App.Vector(0, 0, 1), 1.65),
    Part.Circle(App.Vector(71, -65, 0), App.Vector(0, 0, 1), 1.65),
], False)
sketch7.addConstraint([
    Sketcher.Constraint("Equal", 0, 1),
    Sketcher.Constraint("Equal", 1, 2),
    Sketcher.Constraint("Equal", 2, 3),
    Sketcher.Constraint("Symmetric", 1, 3, 2, 3, -2),
    Sketcher.Constraint("Symmetric", 0, 3, 3, 3, -2),
    Sketcher.Constraint("Vertical", 0, 3, 1, 3),
    Sketcher.Constraint("Diameter", 0, 3.3),
    Sketcher.Constraint("DistanceX", 0, 3, -1, 1, 71.0),
    Sketcher.Constraint("DistanceY", 0, 3, -1, 1, 65.0),
    Sketcher.Constraint("DistanceY", -1, 1, 1, 3, 15.0),
])
pocket6 = body.newObject("PartDesign::Pocket", "Pocket005")
pocket6.Profile = sketch7
pocket6.Length = 50

# Sketch on XZ plane
sketch8 = body.newObject("Sketcher::SketchObject", "Sketch007")
sketch8.AttachmentSupport = (doc.getObject("XZ_Plane"), [""])
sketch8.MapMode = "FlatFace"
sketch8.addGeometry([
    Part.Circle(App.Vector(-71, -65, 0), App.Vector(0, 0, 1), 3),
    Part.Circle(App.Vector(-71, 15, 0), App.Vector(0, 0, 1), 3),
    Part.Circle(App.Vector(71, -65, 0), App.Vector(0, 0, 1), 3),
    Part.Circle(App.Vector(71, 15, 0), App.Vector(0, 0, 1), 3),
], False)
sketch8.addConstraint([
    Sketcher.Constraint("Equal", 0, 1),
    Sketcher.Constraint("Equal", 1, 2),
    Sketcher.Constraint("Equal", 2, 3),
    Sketcher.Constraint("Symmetric", 0, 3, 2, 3, -2),
    Sketcher.Constraint("Symmetric", 1, 3, 3, 3, -2),
    Sketcher.Constraint("Vertical", 0, 3, 1, 3),
    Sketcher.Constraint("Diameter", 0, 6.0),
    Sketcher.Constraint("DistanceX", 0, 3, -1, 1, 71.0),
    Sketcher.Constraint("DistanceY", 0, 3, -1, 1, 65.0),
    Sketcher.Constraint("DistanceY", -1, 1, 1, 3, 15.0),
])
pocket7 = body.newObject("PartDesign::Pocket", "Pocket006")
pocket7.Profile = sketch8
pocket7.Length = 3.3

# Sketch on XZ plane
sketch9 = body.newObject("Sketcher::SketchObject", "Sketch008")
sketch9.AttachmentSupport = (doc.getObject("XZ_Plane"), [""])
sketch9.MapMode = "FlatFace"
sketch9.addGeometry(Part.Circle(App.Vector(0, 76, 0), App.Vector(0, 0, 1), 1.65), False)
sketch9.addConstraint([
    Sketcher.Constraint("PointOnObject", 0, 3, -2),
    Sketcher.Constraint("Diameter", 0, 3.3),
    Sketcher.Constraint("DistanceY", -1, 1, 0, 3, 76.0),
])
pocket8 = body.newObject("PartDesign::Pocket", "Pocket007")
pocket8.Profile = sketch9
pocket8.Type = "ThroughAll"

# Sketch on XZ plane
sketch10 = body.newObject("Sketcher::SketchObject", "Sketch009")
sketch10.AttachmentSupport = (doc.getObject("XZ_Plane"), [""])
sketch10.MapMode = "FlatFace"
sketch10.addGeometry(Part.Circle(App.Vector(0, 76, 0), App.Vector(0, 0, 1), 3), False)
sketch10.addConstraint([
    Sketcher.Constraint("PointOnObject", 0, 3, -2),
    Sketcher.Constraint("Diameter", 0, 6.0),
    Sketcher.Constraint("DistanceY", -1, 1, 0, 3, 76.0),
])
pocket9 = body.newObject("PartDesign::Pocket", "Pocket008")
pocket9.Profile = sketch10
pocket9.Length = 3.3

doc.recompute()
